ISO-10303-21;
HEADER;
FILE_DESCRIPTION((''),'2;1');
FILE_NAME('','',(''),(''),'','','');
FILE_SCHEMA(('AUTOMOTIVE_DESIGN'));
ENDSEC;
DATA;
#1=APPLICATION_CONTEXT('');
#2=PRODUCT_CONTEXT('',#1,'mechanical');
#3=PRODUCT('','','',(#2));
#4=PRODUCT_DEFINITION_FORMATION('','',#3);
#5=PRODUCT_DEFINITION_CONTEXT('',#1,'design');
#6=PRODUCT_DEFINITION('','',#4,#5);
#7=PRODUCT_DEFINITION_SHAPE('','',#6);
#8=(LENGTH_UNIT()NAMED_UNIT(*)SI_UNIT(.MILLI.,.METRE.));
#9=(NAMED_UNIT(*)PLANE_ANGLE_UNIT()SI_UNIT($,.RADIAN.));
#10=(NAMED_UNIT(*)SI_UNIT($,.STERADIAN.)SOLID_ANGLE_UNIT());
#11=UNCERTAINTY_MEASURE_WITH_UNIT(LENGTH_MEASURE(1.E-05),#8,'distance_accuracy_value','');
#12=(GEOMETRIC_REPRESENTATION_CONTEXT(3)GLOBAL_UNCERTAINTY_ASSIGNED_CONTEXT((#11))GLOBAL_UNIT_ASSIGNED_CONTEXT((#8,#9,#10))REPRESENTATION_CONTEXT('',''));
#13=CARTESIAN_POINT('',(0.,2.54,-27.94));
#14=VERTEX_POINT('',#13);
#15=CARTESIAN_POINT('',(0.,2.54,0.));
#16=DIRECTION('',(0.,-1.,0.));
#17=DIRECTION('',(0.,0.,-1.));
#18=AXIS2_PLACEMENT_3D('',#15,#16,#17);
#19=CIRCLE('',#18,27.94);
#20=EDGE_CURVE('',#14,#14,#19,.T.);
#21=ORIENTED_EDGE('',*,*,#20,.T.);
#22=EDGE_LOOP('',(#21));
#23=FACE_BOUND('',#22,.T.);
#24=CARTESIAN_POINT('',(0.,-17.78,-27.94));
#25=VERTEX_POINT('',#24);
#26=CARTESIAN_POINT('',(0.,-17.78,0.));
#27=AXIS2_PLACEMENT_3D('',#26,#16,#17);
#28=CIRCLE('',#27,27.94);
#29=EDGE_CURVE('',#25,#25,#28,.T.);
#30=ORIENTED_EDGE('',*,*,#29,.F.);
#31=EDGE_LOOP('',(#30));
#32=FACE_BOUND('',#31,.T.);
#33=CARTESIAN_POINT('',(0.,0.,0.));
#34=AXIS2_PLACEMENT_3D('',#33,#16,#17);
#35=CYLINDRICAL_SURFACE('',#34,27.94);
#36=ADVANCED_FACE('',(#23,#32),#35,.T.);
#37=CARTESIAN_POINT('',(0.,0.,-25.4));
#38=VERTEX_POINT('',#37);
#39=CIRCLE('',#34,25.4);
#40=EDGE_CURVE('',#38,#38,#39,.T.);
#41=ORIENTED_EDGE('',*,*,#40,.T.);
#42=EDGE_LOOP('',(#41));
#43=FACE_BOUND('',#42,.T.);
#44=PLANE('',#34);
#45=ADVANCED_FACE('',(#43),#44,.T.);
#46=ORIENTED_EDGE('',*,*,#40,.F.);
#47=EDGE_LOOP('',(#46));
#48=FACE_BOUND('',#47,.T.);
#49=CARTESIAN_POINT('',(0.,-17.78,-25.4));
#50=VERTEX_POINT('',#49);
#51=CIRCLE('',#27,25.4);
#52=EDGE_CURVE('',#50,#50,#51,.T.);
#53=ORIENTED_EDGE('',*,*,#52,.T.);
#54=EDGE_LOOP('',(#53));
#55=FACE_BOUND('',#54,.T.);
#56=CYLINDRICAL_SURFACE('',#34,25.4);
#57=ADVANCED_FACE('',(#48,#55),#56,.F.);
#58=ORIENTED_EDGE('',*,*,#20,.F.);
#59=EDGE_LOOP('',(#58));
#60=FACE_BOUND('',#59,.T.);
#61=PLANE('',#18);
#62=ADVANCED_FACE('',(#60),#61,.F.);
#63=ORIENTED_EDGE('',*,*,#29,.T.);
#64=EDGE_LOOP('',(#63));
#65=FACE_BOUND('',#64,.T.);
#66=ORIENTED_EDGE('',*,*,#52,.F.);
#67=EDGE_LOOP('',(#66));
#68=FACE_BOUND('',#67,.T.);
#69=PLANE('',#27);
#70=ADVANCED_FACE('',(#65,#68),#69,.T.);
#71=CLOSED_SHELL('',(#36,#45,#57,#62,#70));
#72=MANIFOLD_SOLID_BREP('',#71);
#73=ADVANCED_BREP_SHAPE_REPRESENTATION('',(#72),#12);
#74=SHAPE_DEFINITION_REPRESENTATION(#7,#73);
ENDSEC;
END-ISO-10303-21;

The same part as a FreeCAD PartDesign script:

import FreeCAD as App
import Part
import Sketcher
Q = App.Units.Quantity

doc = App.newDocument("Part")
body = doc.addObject("PartDesign::Body", "Body")

# Sketch on XY plane
sketch1 = body.newObject("Sketcher::SketchObject", "Sketch")
sketch1.AttachmentSupport = (doc.getObject("XY_Plane"), [""])
sketch1.MapMode = "FlatFace"
sketch1.addGeometry([
    Part.LineSegment(App.Vector(25.4, 0, 0), App.Vector(25.4, -17.8, 0)),  # 0
    Part.LineSegment(App.Vector(25.4, -17.8, 0), App.Vector(27.9, -17.8, 0)),  # 1
    Part.LineSegment(App.Vector(27.9, -17.8, 0), App.Vector(27.9, 2.5, 0)),  # 2
    Part.LineSegment(App.Vector(27.9, 2.5, 0), App.Vector(0, 2.5, 0)),  # 3
    Part.LineSegment(App.Vector(0, 2.5, 0), App.Vector(0, 0, 0)),  # 4
    Part.LineSegment(App.Vector(0, 0, 0), App.Vector(25.4, 0, 0)),  # 5
], False)
sketch1.addConstraint([
    Sketcher.Constraint("Coincident", 0, 2, 1, 1),
    Sketcher.Constraint("Coincident", 1, 2, 2, 1),
    Sketcher.Constraint("Coincident", 2, 2, 3, 1),
    Sketcher.Constraint("Coincident", 3, 2, 4, 1),
    Sketcher.Constraint("Coincident", 4, 2, 5, 1),
    Sketcher.Constraint("Coincident", 5, 2, 0, 1),
    Sketcher.Constraint("Vertical", 0),
    Sketcher.Constraint("Horizontal", 1),
    Sketcher.Constraint("Vertical", 2),
    Sketcher.Constraint("Horizontal", 3),
    Sketcher.Constraint("Vertical", 4),
    Sketcher.Constraint("Horizontal", 5),
    Sketcher.Constraint("Coincident", 4, 2, -1, 1),
    Sketcher.Constraint("Equal", 1, 4),
    Sketcher.Constraint("DistanceX", 5, 1, 5, 2, Q("1 in")),
    Sketcher.Constraint("DistanceX", 1, 1, 1, 2, Q("0.1 in")),
    Sketcher.Constraint("DistanceY", 0, 2, 0, 1, Q("0.7 in")),
])
revolution = body.newObject("PartDesign::Revolution", "Revolution")
revolution.Profile = sketch1
revolution.ReferenceAxis = (sketch1, ["V_Axis"])
revolution.Angle = 360

doc.recompute()
